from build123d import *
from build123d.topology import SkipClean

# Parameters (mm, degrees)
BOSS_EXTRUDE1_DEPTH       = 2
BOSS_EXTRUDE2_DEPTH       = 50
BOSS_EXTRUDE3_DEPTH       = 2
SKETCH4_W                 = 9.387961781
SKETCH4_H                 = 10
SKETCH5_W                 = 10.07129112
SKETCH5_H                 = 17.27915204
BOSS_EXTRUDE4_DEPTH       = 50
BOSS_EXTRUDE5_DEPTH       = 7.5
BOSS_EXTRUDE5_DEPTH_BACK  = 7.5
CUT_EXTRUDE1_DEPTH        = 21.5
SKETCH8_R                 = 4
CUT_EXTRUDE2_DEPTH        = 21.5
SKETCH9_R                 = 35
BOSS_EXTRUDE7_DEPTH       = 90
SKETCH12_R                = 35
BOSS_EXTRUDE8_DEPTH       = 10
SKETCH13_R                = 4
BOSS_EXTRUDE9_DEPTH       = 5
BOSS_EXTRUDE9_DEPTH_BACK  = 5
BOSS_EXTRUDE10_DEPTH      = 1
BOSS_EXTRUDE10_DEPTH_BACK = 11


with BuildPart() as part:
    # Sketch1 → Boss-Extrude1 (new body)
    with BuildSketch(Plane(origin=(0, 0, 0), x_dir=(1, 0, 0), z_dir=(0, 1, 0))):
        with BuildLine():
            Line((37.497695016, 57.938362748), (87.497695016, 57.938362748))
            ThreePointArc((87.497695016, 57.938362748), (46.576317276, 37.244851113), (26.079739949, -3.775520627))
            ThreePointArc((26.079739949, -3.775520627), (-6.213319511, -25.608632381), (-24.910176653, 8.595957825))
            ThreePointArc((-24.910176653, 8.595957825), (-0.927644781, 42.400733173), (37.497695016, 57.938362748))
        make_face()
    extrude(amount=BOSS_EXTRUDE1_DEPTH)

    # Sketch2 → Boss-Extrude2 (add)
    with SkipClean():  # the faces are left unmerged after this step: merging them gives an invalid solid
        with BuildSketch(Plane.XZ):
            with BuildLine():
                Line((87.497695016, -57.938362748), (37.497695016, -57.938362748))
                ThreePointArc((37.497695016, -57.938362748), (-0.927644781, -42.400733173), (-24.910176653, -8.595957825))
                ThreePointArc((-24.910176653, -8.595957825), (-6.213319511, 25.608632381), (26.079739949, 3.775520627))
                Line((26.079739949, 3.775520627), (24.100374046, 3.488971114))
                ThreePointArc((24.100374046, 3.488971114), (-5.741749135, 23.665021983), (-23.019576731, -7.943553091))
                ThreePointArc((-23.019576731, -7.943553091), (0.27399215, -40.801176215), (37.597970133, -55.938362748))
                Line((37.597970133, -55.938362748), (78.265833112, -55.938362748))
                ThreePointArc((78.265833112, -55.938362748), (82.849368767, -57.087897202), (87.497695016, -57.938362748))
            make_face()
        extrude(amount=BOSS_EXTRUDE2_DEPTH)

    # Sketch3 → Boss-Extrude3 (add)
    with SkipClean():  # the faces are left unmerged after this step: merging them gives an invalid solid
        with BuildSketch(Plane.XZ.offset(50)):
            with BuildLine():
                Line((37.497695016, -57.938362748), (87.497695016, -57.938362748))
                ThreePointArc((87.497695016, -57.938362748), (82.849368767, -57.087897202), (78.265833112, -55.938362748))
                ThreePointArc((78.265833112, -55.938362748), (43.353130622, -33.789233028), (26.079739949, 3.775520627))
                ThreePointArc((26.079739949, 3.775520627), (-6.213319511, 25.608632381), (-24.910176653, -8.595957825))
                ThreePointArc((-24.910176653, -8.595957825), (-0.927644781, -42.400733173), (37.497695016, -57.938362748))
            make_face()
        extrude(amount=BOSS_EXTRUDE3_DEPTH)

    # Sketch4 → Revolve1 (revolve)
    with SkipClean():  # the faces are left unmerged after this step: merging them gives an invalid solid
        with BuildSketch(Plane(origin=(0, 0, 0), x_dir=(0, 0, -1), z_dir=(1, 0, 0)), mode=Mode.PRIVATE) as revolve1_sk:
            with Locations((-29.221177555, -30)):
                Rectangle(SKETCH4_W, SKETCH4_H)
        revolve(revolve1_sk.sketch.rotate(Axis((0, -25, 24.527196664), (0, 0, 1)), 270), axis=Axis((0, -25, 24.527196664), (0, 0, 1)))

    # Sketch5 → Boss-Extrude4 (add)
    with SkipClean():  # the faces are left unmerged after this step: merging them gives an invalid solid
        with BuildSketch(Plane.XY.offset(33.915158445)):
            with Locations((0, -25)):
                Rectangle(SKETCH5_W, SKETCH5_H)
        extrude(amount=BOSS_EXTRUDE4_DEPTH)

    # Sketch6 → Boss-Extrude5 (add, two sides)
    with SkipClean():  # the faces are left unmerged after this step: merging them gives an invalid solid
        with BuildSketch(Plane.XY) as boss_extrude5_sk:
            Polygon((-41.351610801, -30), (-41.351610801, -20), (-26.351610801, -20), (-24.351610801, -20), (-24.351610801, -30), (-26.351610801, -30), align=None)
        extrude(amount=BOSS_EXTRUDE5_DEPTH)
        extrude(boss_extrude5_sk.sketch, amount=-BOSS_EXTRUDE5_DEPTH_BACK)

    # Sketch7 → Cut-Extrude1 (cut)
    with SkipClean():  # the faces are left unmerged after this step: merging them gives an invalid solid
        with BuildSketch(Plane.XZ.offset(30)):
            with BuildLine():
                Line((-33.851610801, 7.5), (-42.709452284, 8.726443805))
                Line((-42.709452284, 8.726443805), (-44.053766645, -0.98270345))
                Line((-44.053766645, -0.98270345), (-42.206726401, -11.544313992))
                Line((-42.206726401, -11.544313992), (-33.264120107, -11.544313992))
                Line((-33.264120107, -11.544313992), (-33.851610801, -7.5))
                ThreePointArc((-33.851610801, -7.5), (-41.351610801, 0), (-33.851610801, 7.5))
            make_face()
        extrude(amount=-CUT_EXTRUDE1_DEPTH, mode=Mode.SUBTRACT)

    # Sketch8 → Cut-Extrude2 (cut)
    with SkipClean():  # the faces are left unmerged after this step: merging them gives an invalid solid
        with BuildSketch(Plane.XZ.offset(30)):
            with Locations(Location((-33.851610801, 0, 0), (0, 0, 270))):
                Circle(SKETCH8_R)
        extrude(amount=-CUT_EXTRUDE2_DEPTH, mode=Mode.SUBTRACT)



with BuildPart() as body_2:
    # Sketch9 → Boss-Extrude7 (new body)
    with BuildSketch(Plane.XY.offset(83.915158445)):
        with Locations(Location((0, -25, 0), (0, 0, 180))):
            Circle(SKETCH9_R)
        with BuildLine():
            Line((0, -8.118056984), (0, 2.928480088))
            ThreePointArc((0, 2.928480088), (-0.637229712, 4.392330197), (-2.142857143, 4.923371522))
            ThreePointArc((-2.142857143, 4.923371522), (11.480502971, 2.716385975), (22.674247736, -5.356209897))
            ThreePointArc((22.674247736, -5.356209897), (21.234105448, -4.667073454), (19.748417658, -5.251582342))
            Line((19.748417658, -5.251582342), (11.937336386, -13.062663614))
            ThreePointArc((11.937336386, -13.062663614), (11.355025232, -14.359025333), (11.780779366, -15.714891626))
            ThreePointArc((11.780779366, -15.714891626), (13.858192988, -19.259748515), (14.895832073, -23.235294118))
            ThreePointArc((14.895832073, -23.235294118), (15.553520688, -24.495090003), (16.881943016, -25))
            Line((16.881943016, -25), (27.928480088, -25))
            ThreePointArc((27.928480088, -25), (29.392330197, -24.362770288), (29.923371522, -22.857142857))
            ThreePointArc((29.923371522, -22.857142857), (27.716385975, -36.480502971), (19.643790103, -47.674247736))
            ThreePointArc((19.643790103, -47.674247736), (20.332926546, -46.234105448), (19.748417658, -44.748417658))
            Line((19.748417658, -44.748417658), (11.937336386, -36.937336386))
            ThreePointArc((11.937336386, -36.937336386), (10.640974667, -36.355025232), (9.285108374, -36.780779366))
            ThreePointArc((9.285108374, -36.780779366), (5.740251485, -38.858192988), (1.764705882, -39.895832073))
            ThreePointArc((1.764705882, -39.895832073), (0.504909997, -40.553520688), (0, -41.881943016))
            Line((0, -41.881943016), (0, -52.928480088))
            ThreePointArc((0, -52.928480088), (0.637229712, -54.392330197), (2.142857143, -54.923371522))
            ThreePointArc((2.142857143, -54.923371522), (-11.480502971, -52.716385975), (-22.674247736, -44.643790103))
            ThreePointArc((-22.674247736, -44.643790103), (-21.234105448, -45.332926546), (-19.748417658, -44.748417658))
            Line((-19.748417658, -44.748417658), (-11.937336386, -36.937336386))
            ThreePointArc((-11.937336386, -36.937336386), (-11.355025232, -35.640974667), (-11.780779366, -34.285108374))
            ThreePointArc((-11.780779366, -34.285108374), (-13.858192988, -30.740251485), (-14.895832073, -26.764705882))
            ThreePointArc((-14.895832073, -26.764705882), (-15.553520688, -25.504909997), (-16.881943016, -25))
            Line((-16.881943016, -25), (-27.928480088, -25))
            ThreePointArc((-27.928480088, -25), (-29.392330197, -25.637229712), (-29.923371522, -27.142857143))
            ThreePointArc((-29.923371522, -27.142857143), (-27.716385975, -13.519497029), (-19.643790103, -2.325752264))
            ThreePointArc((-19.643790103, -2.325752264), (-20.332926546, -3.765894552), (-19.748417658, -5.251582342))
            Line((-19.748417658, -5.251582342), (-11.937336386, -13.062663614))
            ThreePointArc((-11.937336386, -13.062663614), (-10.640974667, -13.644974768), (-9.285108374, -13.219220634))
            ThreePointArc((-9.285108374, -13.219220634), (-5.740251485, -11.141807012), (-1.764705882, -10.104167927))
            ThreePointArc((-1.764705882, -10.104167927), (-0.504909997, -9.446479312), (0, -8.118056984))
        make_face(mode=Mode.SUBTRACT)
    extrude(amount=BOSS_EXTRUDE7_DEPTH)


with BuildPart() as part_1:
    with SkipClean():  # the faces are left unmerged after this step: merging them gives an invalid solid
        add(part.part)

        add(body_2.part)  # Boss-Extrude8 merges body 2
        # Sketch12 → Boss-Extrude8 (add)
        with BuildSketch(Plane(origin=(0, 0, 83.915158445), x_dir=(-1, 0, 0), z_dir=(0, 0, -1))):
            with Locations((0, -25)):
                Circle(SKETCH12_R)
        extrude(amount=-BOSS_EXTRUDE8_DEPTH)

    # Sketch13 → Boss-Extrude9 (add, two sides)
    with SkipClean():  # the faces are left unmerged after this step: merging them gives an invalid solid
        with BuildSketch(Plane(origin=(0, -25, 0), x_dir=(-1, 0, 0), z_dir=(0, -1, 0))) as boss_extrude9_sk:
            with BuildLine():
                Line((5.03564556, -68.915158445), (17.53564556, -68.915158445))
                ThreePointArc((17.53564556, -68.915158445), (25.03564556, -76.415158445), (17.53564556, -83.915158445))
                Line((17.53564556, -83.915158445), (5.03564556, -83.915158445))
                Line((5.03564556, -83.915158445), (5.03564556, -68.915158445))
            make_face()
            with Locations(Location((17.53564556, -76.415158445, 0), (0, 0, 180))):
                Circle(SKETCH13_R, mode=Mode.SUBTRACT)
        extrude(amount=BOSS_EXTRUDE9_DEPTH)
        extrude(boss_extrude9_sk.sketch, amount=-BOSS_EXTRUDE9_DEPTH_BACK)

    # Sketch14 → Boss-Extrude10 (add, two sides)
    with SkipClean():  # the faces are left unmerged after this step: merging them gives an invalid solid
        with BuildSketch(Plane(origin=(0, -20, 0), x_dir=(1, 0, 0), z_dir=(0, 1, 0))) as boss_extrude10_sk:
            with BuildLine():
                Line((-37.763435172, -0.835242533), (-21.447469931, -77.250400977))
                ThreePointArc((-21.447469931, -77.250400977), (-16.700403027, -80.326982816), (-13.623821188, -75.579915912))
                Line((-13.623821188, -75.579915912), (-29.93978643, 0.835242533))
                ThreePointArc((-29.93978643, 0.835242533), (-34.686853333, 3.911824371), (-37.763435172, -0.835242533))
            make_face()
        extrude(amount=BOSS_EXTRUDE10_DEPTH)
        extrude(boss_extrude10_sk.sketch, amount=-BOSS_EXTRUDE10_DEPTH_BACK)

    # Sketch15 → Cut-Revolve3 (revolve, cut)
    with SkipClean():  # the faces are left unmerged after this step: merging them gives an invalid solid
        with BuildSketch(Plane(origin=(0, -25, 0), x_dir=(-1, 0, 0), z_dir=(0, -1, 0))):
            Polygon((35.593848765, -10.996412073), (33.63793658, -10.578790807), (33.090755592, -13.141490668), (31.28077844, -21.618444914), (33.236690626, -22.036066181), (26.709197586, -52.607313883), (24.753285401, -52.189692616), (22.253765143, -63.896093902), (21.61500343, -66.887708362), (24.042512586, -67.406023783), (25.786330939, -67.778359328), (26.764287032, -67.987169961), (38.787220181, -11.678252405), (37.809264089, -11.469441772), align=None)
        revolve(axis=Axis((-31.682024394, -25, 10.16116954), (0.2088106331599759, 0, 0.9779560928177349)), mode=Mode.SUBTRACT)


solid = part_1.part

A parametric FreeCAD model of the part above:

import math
import FreeCAD as App
import Part
import Sketcher
Q = App.Units.Quantity


def add_polygon(sketch, points):
    """Adds a closed chain of lines whose ends are joined by coincident constraints."""
    first, n = sketch.GeometryCount, len(points)
    for a, b in zip(points, points[1:] + points[:1]):
        sketch.addGeometry(Part.LineSegment(App.Vector(*a, 0), App.Vector(*b, 0)), False)
    for i in range(n):
        sketch.addConstraint(Sketcher.Constraint("Coincident", first + i, 2, first + (i + 1) % n, 1))

doc = App.newDocument("Part")
body = doc.addObject("PartDesign::Body", "Body")

# Sketch on XZ plane
sketch1 = body.newObject("Sketcher::SketchObject", "Sketch")
sketch1.AttachmentSupport = (doc.getObject("XZ_Plane"), [""])
sketch1.MapMode = "FlatFace"
sketch1.addGeometry([
    Part.LineSegment(App.Vector(87, -58, 0), App.Vector(37, -58, 0)),
    Part.ArcOfCircle(Part.Circle(App.Vector(45, 15, 0), App.Vector(0, 0, 1), 74), math.radians(-161), math.radians(-96)),
    Part.ArcOfCircle(Part.Circle(App.Vector(0, 0, 0), App.Vector(0, 0, 1), 26), math.radians(8), math.radians(199)),
    Part.ArcOfCircle(Part.Circle(App.Vector(98, 14, 0), App.Vector(0, 0, 1), 73), math.radians(-172), math.radians(-99)),
], False)
sketch1.addConstraint([
    Sketcher.Constraint("Coincident", 0, 2, 1, 2),
    Sketcher.Constraint("Tangent", 1, 1, 2, 2),
    Sketcher.Constraint("Tangent", 2, 1, 3, 1),
    Sketcher.Constraint("Coincident", 3, 2, 0, 1),
    Sketcher.Constraint("Horizontal", 0),
    Sketcher.Constraint("Coincident", 2, 3, -1, 1),
    Sketcher.Constraint("DistanceX", 0, 2, 0, 1, Q("50 mm")),
    Sketcher.Constraint("Radius", 2, Q("26.351611 mm")),
    Sketcher.Constraint("Radius", 3, Q("72.973032 mm")),
    Sketcher.Constraint("Radius", 1, Q("73.771905 mm")),
    Sketcher.Constraint("DistanceX", -1, 1, 1, 3, Q("44.826402 mm")),
    Sketcher.Constraint("DistanceY", 3, 3, 1, 3, Q("1.237898 mm")),
])
pad1 = body.newObject("PartDesign::Pad", "Pad")
pad1.Profile = sketch1
pad1.Length = 2
pad1.Reversed = True

# Sketch on XZ plane
sketch2 = body.newObject("Sketcher::SketchObject", "Sketch001")
sketch2.AttachmentSupport = (doc.getObject("XZ_Plane"), [""])
sketch2.MapMode = "FlatFace"
sketch2.addGeometry([
    Part.LineSegment(App.Vector(37.5, -57.9, 0), App.Vector(87.5, -57.9, 0)),  # 0
    Part.ArcOfCircle(Part.Circle(App.Vector(98.3, 14.2, 0), App.Vector(0, 0, 1), 73), math.radians(-105.93), math.radians(-98.51)),  # 1
    Part.LineSegment(App.Vector(78.3, -55.9, 0), App.Vector(37.6, -55.9, 0)),  # 2
    Part.ArcOfCircle(Part.Circle(App.Vector(44.8, 15.5, 0), App.Vector(0, 0, 1), 71.8), math.radians(-161), math.radians(-96)),  # 3
    Part.ArcOfCircle(Part.Circle(App.Vector(0, 0, 0), App.Vector(0, 0, 1), 24.4), math.radians(8), math.radians(199)),  # 4
    Part.LineSegment(App.Vector(24.1, 3.5, 0), App.Vector(26.1, 3.8, 0)),  # 5
    Part.ArcOfCircle(Part.Circle(App.Vector(0, 0, 0), App.Vector(0, 0, 1), 26.4), math.radians(8), math.radians(199)),  # 6
    Part.ArcOfCircle(Part.Circle(App.Vector(44.8, 15.5, 0), App.Vector(0, 0, 1), 73.8), math.radians(-161), math.radians(-96)),  # 7
], False)
sketch2.addConstraint([
    Sketcher.Constraint("Coincident", 0, 2, 1, 2),
    Sketcher.Constraint("Coincident", 1, 1, 2, 1),
    Sketcher.Constraint("Coincident", 2, 2, 3, 2),
    Sketcher.Constraint("Tangent", 3, 1, 4, 2),
    Sketcher.Constraint("Coincident", 4, 1, 5, 1),
    Sketcher.Constraint("Coincident", 5, 2, 6, 1),
    Sketcher.Constraint("Tangent", 6, 2, 7, 1),
    Sketcher.Constraint("Coincident", 7, 2, 0, 1),
    Sketcher.Constraint("Horizontal", 0),
    Sketcher.Constraint("Horizontal", 2),
    Sketcher.Constraint("Coincident", 4, 3, -1, 1),
    Sketcher.Constraint("Coincident", 6, 3, -1, 1),
    Sketcher.Constraint("Coincident", 7, 3, 3, 3),
    Sketcher.Constraint("DistanceX", 0, 1, 0, 2, Q("50 mm")),
    Sketcher.Constraint("Distance", 5, Q("2 mm")),
    Sketcher.Constraint("DistanceY", 0, 2, 1, 1, Q("2 mm")),
    Sketcher.Constraint("Radius", 1, Q("72.973032 mm")),
    Sketcher.Constraint("Radius", 4, Q("24.351611 mm")),
    Sketcher.Constraint("Radius", 3, Q("71.771905 mm")),
    Sketcher.Constraint("DistanceX", -1, 1, 3, 3, Q("44.826402 mm")),
    Sketcher.Constraint("DistanceY", 1, 3, 3, 3, Q("1.237898 mm")),
    Sketcher.Constraint("DistanceX", 2, 2, 2, 1, Q("40.667863 mm")),
    Sketcher.Constraint("DistanceY", -1, 1, 4, 1, Q("3.488971 mm")),
    Sketcher.Constraint("DistanceX", -1, 1, 5, 2, Q("26.07974 mm")),
])
pad2 = body.newObject("PartDesign::Pad", "Pad001")
pad2.Profile = sketch2
pad2.Length = 50

# Sketch on XZ plane
sketch3 = body.newObject("Sketcher::SketchObject", "Sketch002")
sketch3.AttachmentSupport = (doc.getObject("XZ_Plane"), [""])
sketch3.MapMode = "FlatFace"
sketch3.AttachmentOffset = App.Placement(App.Vector(0, 0, 50), App.Rotation())
sketch3.addGeometry([
    Part.LineSegment(App.Vector(37, -58, 0), App.Vector(87, -58, 0)),  # 0
    Part.ArcOfCircle(Part.Circle(App.Vector(98, 14, 0), App.Vector(0, 0, 1), 73), math.radians(-105.93), math.radians(-98.51)),  # 1
    Part.ArcOfCircle(Part.Circle(App.Vector(98, 14, 0), App.Vector(0, 0, 1), 73), math.radians(-172), math.radians(-106)),  # 2
    Part.ArcOfCircle(Part.Circle(App.Vector(0, 0, 0), App.Vector(0, 0, 1), 26), math.radians(8), math.radians(199)),  # 3
    Part.ArcOfCircle(Part.Circle(App.Vector(45, 15, 0), App.Vector(0, 0, 1), 74), math.radians(-161), math.radians(-96)),  # 4
], False)
sketch3.addConstraint([
    Sketcher.Constraint("Coincident", 0, 2, 1, 2),
    Sketcher.Constraint("Tangent", 1, 1, 2, 2),
    Sketcher.Constraint("Tangent", 2, 1, 3, 1),
    Sketcher.Constraint("Tangent", 3, 2, 4, 1),
    Sketcher.Constraint("Coincident", 4, 2, 0, 1),
    Sketcher.Constraint("Horizontal", 0),
    Sketcher.Constraint("Coincident", 3, 3, -1, 1),
    Sketcher.Constraint("Equal", 1, 2),
    Sketcher.Constraint("DistanceX", 0, 1, 0, 2, Q("50 mm")),
    Sketcher.Constraint("DistanceY", 0, 2, 1, 1, Q("2 mm")),
    Sketcher.Constraint("Radius", 1, Q("72.973032 mm")),
    Sketcher.Constraint("Radius", 3, Q("26.351611 mm")),
    Sketcher.Constraint("Radius", 4, Q("73.771905 mm")),
    Sketcher.Constraint("DistanceX", -1, 1, 4, 3, Q("44.826402 mm")),
    Sketcher.Constraint("DistanceY", 1, 3, 4, 3, Q("1.237898 mm")),
])
pad3 = body.newObject("PartDesign::Pad", "Pad002")
pad3.Profile = sketch3
pad3.Length = 2

# Sketch on YZ plane
sketch4 = body.newObject("Sketcher::SketchObject", "Sketch003")
sketch4.AttachmentSupport = (doc.getObject("YZ_Plane"), [""])
sketch4.MapMode = "FlatFace"
add_polygon(sketch4, [(-25, 34), (-35, 34), (-35, 25), (-25, 25)])  # lines 0-3
sketch4.addGeometry(Part.LineSegment(App.Vector(-25, 25, 0), App.Vector(-25, 34, 0)), True)  # axis
sketch4.addConstraint([
    Sketcher.Constraint("Horizontal", 0),
    Sketcher.Constraint("Vertical", 1),
    Sketcher.Constraint("Horizontal", 2),
    Sketcher.Constraint("Vertical", 3),
    Sketcher.Constraint("Vertical", 4),
    Sketcher.Constraint("Coincident", 4, 1, 2, 2),
    Sketcher.Constraint("Horizontal", 0, 2, 4, 2),
    Sketcher.Constraint("DistanceX", 0, 2, 0, 1, Q("10 mm")),
    Sketcher.Constraint("DistanceX", 0, 2, -1, 1, Q("35 mm")),
    Sketcher.Constraint("DistanceY", 1, 2, 1, 1, Q("9.387962 mm")),
    Sketcher.Constraint("DistanceY", -1, 1, 0, 2, Q("33.915158 mm")),
])
revolution = body.newObject("PartDesign::Revolution", "Revolution")
revolution.Profile = sketch4
revolution.ReferenceAxis = (sketch4, ["Axis0"])
revolution.Angle = 360

# Sketch on XY plane
sketch5 = body.newObject("Sketcher::SketchObject", "Sketch004")
sketch5.AttachmentSupport = (doc.getObject("XY_Plane"), [""])
sketch5.MapMode = "FlatFace"
sketch5.AttachmentOffset = App.Placement(App.Vector(0, 0, 33.915158), App.Rotation())
add_polygon(sketch5, [(-5, -16), (-5, -34), (5, -34), (5, -16)])  # lines 0-3
sketch5.addConstraint([
    Sketcher.Constraint("Vertical", 0),
    Sketcher.Constraint("Horizontal", 1),
    Sketcher.Constraint("Vertical", 2),
    Sketcher.Constraint("Horizontal", 3),
    Sketcher.Constraint("DistanceX", 1, 1, 1, 2, Q("10.071291 mm")),
    Sketcher.Constraint("DistanceY", 0, 2, 0, 1, Q("17.279152 mm")),
    Sketcher.Constraint("DistanceX", 0, 2, -1, 1, Q("5.035646 mm")),
    Sketcher.Constraint("DistanceY", 0, 2, -1, 1, Q("33.639576 mm")),
])
pad4 = body.newObject("PartDesign::Pad", "Pad003")
pad4.Profile = sketch5
pad4.Length = 50

# Sketch on XY plane
sketch6 = body.newObject("Sketcher::SketchObject", "Sketch005")
sketch6.AttachmentSupport = (doc.getObject("XY_Plane"), [""])
sketch6.MapMode = "FlatFace"
add_polygon(sketch6, [(-41, -20), (-41, -30), (-24, -30), (-24, -20)])  # lines 0-3
sketch6.addConstraint([
    Sketcher.Constraint("Vertical", 0),
    Sketcher.Constraint("Horizontal", 1),
    Sketcher.Constraint("Vertical", 2),
    Sketcher.Constraint("Horizontal", 3),
    Sketcher.Constraint("DistanceX", 1, 1, 1, 2, Q("17 mm")),
    Sketcher.Constraint("DistanceY", 0, 2, 0, 1, Q("10 mm")),
    Sketcher.Constraint("DistanceY", 0, 2, -1, 1, Q("30 mm")),
    Sketcher.Constraint("DistanceX", 0, 2, -1, 1, Q("41.351611 mm")),
])
pad5 = body.newObject("PartDesign::Pad", "Pad004")
pad5.Profile = sketch6
pad5.Type = "TwoLengths"
pad5.Length = 7.5
pad5.Length2 = 7.5

# Sketch on XZ plane
sketch7 = body.newObject("Sketcher::SketchObject", "Sketch006")
sketch7.AttachmentSupport = (doc.getObject("XZ_Plane"), [""])
sketch7.MapMode = "FlatFace"
sketch7.AttachmentOffset = App.Placement(App.Vector(0, 0, 30), App.Rotation())
sketch7.addGeometry([
    Part.LineSegment(App.Vector(-33.9, 7.5, 0), App.Vector(-42.7, 8.7, 0)),  # 0
    Part.LineSegment(App.Vector(-42.7, 8.7, 0), App.Vector(-44.1, -1, 0)),  # 1
    Part.LineSegment(App.Vector(-44.1, -1, 0), App.Vector(-42.2, -11.5, 0)),  # 2
    Part.LineSegment(App.Vector(-42.2, -11.5, 0), App.Vector(-33.3, -11.5, 0)),  # 3
    Part.LineSegment(App.Vector(-33.3, -11.5, 0), App.Vector(-33.9, -7.5, 0)),  # 4
    Part.ArcOfCircle(Part.Circle(App.Vector(-33.9, 0, 0), App.Vector(0, 0, 1), 7.5), math.radians(90), math.radians(270)),  # 5
], False)
sketch7.addConstraint([
    Sketcher.Constraint("Coincident", 0, 2, 1, 1),
    Sketcher.Constraint("Coincident", 1, 2, 2, 1),
    Sketcher.Constraint("Coincident", 2, 2, 3, 1),
    Sketcher.Constraint("Coincident", 3, 2, 4, 1),
    Sketcher.Constraint("Coincident", 4, 2, 5, 2),
    Sketcher.Constraint("Coincident", 5, 1, 0, 1),
    Sketcher.Constraint("Horizontal", 3),
    Sketcher.Constraint("Symmetric", 4, 2, 5, 1, -1),
    Sketcher.Constraint("Perpendicular", 0, 1),
    Sketcher.Constraint("Vertical", 5, 3, 4, 2),
    Sketcher.Constraint("Radius", 5, Q("7.5 mm")),
    Sketcher.Constraint("Distance", 2, Q("10.721902 mm")),
    Sketcher.Constraint("Distance", 1, Q("9.801771 mm")),
    Sketcher.Constraint("Distance", 4, Q("4.086762 mm")),
    Sketcher.Constraint("DistanceX", 3, 1, 3, 2, Q("8.942606 mm")),
    Sketcher.Constraint("DistanceX", 5, 3, -1, 1, Q("33.851611 mm")),
    Sketcher.Constraint("DistanceX", 3, 2, -1, 1, Q("33.26412 mm")),
    Sketcher.Constraint("DistanceX", 0, 2, 5, 3, Q("8.857841 mm")),
])
pocket1 = body.newObject("PartDesign::Pocket", "Pocket")
pocket1.Profile = sketch7
pocket1.Length = 21.5

# Sketch on XZ plane
sketch8 = body.newObject("Sketcher::SketchObject", "Sketch007")
sketch8.AttachmentSupport = (doc.getObject("XZ_Plane"), [""])
sketch8.MapMode = "FlatFace"
sketch8.AttachmentOffset = App.Placement(App.Vector(0, 0, 30), App.Rotation())
sketch8.addGeometry(Part.Circle(App.Vector(-33.9, 0, 0), App.Vector(0, 0, 1), 4), False)
sketch8.addConstraint([
    Sketcher.Constraint("PointOnObject", 0, 3, -1),
    Sketcher.Constraint("Diameter", 0, Q("8 mm")),
    Sketcher.Constraint("DistanceX", 0, 3, -1, 1, Q("33.851611 mm")),
])
pocket2 = body.newObject("PartDesign::Pocket", "Pocket001")
pocket2.Profile = sketch8
pocket2.Length = 21.5
body2 = doc.addObject("PartDesign::Body", "Body001")

# Sketch on XY plane
sketch9 = body2.newObject("Sketcher::SketchObject", "Sketch008")
sketch9.AttachmentSupport = (doc.getObject("XY_Plane001"), [""])
sketch9.MapMode = "FlatFace"
sketch9.AttachmentOffset = App.Placement(App.Vector(0, 0, 83.915158), App.Rotation())
sketch9.addGeometry([
    Part.Circle(App.Vector(0, -25, 0), App.Vector(0, 0, 1), 35),  # 0
    Part.ArcOfCircle(Part.Circle(App.Vector(-2, -8.1, 0), App.Vector(0, 0, 1), 2), math.radians(-83), math.radians(0)),  # 1
    Part.LineSegment(App.Vector(0, -8.1, 0), App.Vector(0, 2.9, 0)),  # 2
    Part.ArcOfCircle(Part.Circle(App.Vector(-2, 2.9, 0), App.Vector(0, 0, 1), 2), math.radians(0), math.radians(94)),  # 3
    Part.ArcOfCircle(Part.Circle(App.Vector(0, -25, 0), App.Vector(0, 0, 1), 30), math.radians(41), math.radians(94)),  # 4
    Part.ArcOfCircle(Part.Circle(App.Vector(21.2, -6.7, 0), App.Vector(0, 0, 1), 2), math.radians(41), math.radians(135)),  # 5
    Part.LineSegment(App.Vector(19.7, -5.3, 0), App.Vector(11.9, -13.1, 0)),  # 6
    Part.ArcOfCircle(Part.Circle(App.Vector(13.4, -14.5, 0), App.Vector(0, 0, 1), 2), math.radians(135), math.radians(218)),  # 7
    Part.ArcOfCircle(Part.Circle(App.Vector(0, -25, 0), App.Vector(0, 0, 1), 15), math.radians(7), math.radians(38)),  # 8
    Part.ArcOfCircle(Part.Circle(App.Vector(16.9, -23, 0), App.Vector(0, 0, 1), 2), math.radians(-173), math.radians(-90)),  # 9
    Part.LineSegment(App.Vector(16.9, -25, 0), App.Vector(27.9, -25, 0)),  # 10
    Part.ArcOfCircle(Part.Circle(App.Vector(27.9, -23, 0), App.Vector(0, 0, 1), 2), math.radians(-90), math.radians(4)),  # 11
    Part.ArcOfCircle(Part.Circle(App.Vector(0, -25, 0), App.Vector(0, 0, 1), 30), math.radians(-49), math.radians(4)),  # 12
    Part.ArcOfCircle(Part.Circle(App.Vector(18.3, -46.2, 0), App.Vector(0, 0, 1), 2), math.radians(-49), math.radians(45)),  # 13
    Part.LineSegment(App.Vector(19.7, -44.7, 0), App.Vector(11.9, -36.9, 0)),  # 14
    Part.ArcOfCircle(Part.Circle(App.Vector(10.5, -38.4, 0), App.Vector(0, 0, 1), 2), math.radians(45), math.radians(128)),  # 15
    Part.ArcOfCircle(Part.Circle(App.Vector(0, -25, 0), App.Vector(0, 0, 1), 15), math.radians(-83), math.radians(-52)),  # 16
    Part.ArcOfCircle(Part.Circle(App.Vector(2, -41.9, 0), App.Vector(0, 0, 1), 2), math.radians(97), math.radians(180)),  # 17
    Part.LineSegment(App.Vector(0, -41.9, 0), App.Vector(0, -52.9, 0)),  # 18
    Part.ArcOfCircle(Part.Circle(App.Vector(2, -52.9, 0), App.Vector(0, 0, 1), 2), math.radians(180), math.radians(274)),  # 19
    Part.ArcOfCircle(Part.Circle(App.Vector(0, -25, 0), App.Vector(0, 0, 1), 30), math.radians(-139), math.radians(-86)),  # 20
    Part.ArcOfCircle(Part.Circle(App.Vector(-21.2, -43.3, 0), App.Vector(0, 0, 1), 2), math.radians(-139), math.radians(-45)),  # 21
    Part.LineSegment(App.Vector(-19.7, -44.7, 0), App.Vector(-11.9, -36.9, 0)),  # 22
    Part.ArcOfCircle(Part.Circle(App.Vector(-13.4, -35.5, 0), App.Vector(0, 0, 1), 2), math.radians(-45), math.radians(38)),  # 23
    Part.ArcOfCircle(Part.Circle(App.Vector(0, -25, 0), App.Vector(0, 0, 1), 15), math.radians(-173), math.radians(-142)),  # 24
    Part.ArcOfCircle(Part.Circle(App.Vector(-16.9, -27, 0), App.Vector(0, 0, 1), 2), math.radians(7), math.radians(90)),  # 25
    Part.LineSegment(App.Vector(-16.9, -25, 0), App.Vector(-27.9, -25, 0)),  # 26
    Part.ArcOfCircle(Part.Circle(App.Vector(-27.9, -27, 0), App.Vector(0, 0, 1), 2), math.radians(90), math.radians(184)),  # 27
    Part.ArcOfCircle(Part.Circle(App.Vector(0, -25, 0), App.Vector(0, 0, 1), 30), math.radians(131), math.radians(184)),  # 28
    Part.ArcOfCircle(Part.Circle(App.Vector(-18.3, -3.8, 0), App.Vector(0, 0, 1), 2), math.radians(131), math.radians(225)),  # 29
    Part.LineSegment(App.Vector(-19.7, -5.3, 0), App.Vector(-11.9, -13.1, 0)),  # 30
    Part.ArcOfCircle(Part.Circle(App.Vector(-10.5, -11.6, 0), App.Vector(0, 0, 1), 2), math.radians(-135), math.radians(-52)),  # 31
    Part.ArcOfCircle(Part.Circle(App.Vector(0, -25, 0), App.Vector(0, 0, 1), 15), math.radians(97), math.radians(128)),  # 32
], False)
sketch9.addConstraint([
    Sketcher.Constraint("Tangent", 1, 2, 2, 1),
    Sketcher.Constraint("Tangent", 2, 2, 3, 1),
    Sketcher.Constraint("Tangent", 3, 2, 4, 2),
    Sketcher.Constraint("Tangent", 4, 1, 5, 1),
    Sketcher.Constraint("Tangent", 5, 2, 6, 1),
    Sketcher.Constraint("Tangent", 6, 2, 7, 1),
    Sketcher.Constraint("Tangent", 7, 2, 8, 2),
    Sketcher.Constraint("Tangent", 8, 1, 9, 1),
    Sketcher.Constraint("Tangent", 9, 2, 10, 1),
    Sketcher.Constraint("Tangent", 10, 2, 11, 1),
    Sketcher.Constraint("Tangent", 11, 2, 12, 2),
    Sketcher.Constraint("Tangent", 12, 1, 13, 1),
    Sketcher.Constraint("Tangent", 13, 2, 14, 1),
    Sketcher.Constraint("Tangent", 14, 2, 15, 1),
    Sketcher.Constraint("Tangent", 15, 2, 16, 2),
    Sketcher.Constraint("Tangent", 16, 1, 17, 1),
    Sketcher.Constraint("Tangent", 17, 2, 18, 1),
    Sketcher.Constraint("Tangent", 18, 2, 19, 1),
    Sketcher.Constraint("Tangent", 19, 2, 20, 2),
    Sketcher.Constraint("Tangent", 20, 1, 21, 1),
    Sketcher.Constraint("Tangent", 21, 2, 22, 1),
    Sketcher.Constraint("Tangent", 22, 2, 23, 1),
    Sketcher.Constraint("Tangent", 23, 2, 24, 2),
    Sketcher.Constraint("Tangent", 24, 1, 25, 1),
    Sketcher.Constraint("Tangent", 25, 2, 26, 1),
    Sketcher.Constraint("Tangent", 26, 2, 27, 1),
    Sketcher.Constraint("Tangent", 27, 2, 28, 2),
    Sketcher.Constraint("Tangent", 28, 1, 29, 1),
    Sketcher.Constraint("Tangent", 29, 2, 30, 1),
    Sketcher.Constraint("Tangent", 30, 2, 31, 1),
    Sketcher.Constraint("Tangent", 31, 2, 32, 2),
    Sketcher.Constraint("Tangent", 32, 1, 1, 1),
    Sketcher.Constraint("Vertical", 2),
    Sketcher.Constraint("Horizontal", 10),
    Sketcher.Constraint("Vertical", 18),
    Sketcher.Constraint("Horizontal", 26),
    Sketcher.Constraint("Coincident", 4, 3, 0, 3),
    Sketcher.Constraint("Coincident", 8, 3, 0, 3),
    Sketcher.Constraint("Coincident", 12, 3, 0, 3),
    Sketcher.Constraint("Coincident", 16, 3, 0, 3),
    Sketcher.Constraint("Coincident", 20, 3, 0, 3),
    Sketcher.Constraint("Coincident", 24, 3, 0, 3),
    Sketcher.Constraint("Coincident", 28, 3, 0, 3),
    Sketcher.Constraint("Coincident", 32, 3, 0, 3),
    Sketcher.Constraint("Equal", 1, 3),
    Sketcher.Constraint("Equal", 3, 5),
    Sketcher.Constraint("Equal", 5, 7),
    Sketcher.Constraint("Equal", 7, 9),
    Sketcher.Constraint("Equal", 9, 11),
    Sketcher.Constraint("Equal", 4, 12),
    Sketcher.Constraint("Equal", 11, 13),
    Sketcher.Constraint("Equal", 13, 15),
    Sketcher.Constraint("Equal", 8, 16),
    Sketcher.Constraint("Equal", 15, 17),
    Sketcher.Constraint("Equal", 17, 19),
    Sketcher.Constraint("Equal", 12, 20),
    Sketcher.Constraint("Equal", 19, 21),
    Sketcher.Constraint("Equal", 21, 23),
    Sketcher.Constraint("Equal", 16, 24),
    Sketcher.Constraint("Equal", 23, 25),
    Sketcher.Constraint("Equal", 25, 27),
    Sketcher.Constraint("Equal", 20, 28),
    Sketcher.Constraint("Equal", 27, 29),
    Sketcher.Constraint("Equal", 29, 31),
    Sketcher.Constraint("Equal", 24, 32),
    Sketcher.Constraint("Symmetric", 13, 2, 21, 2, -2),
    Sketcher.Constraint("Symmetric", 14, 2, 22, 2, -2),
    Sketcher.Constraint("Symmetric", 9, 2, 25, 2, -2),
    Sketcher.Constraint("Symmetric", 5, 2, 29, 2, -2),
    Sketcher.Constraint("PointOnObject", 1, 2, -2),
    Sketcher.Constraint("PointOnObject", 17, 2, -2),
    Sketcher.Constraint("Perpendicular", 6, 14),
    Sketcher.Constraint("Perpendicular", 14, 22),
    Sketcher.Constraint("Perpendicular", 22, 30),
    Sketcher.Constraint("Diameter", 0, Q("70 mm")),
    Sketcher.Constraint("Radius", 1, Q("2 mm")),
    Sketcher.Constraint("Radius", 4, Q("30 mm")),
    Sketcher.Constraint("Radius", 8, Q("15 mm")),
    Sketcher.Constraint("DistanceY", 0, 3, -1, 1, Q("25 mm")),
])
pad6 = body2.newObject("PartDesign::Pad", "Pad005")
pad6.Profile = sketch9
pad6.Length = 90
body.AllowCompound = True
doc.recompute()

boolean = body.newObject("PartDesign::Boolean", "Boolean")
boolean.Type = "Fuse"
boolean.addObjects([body2])

# Sketch on XY plane
sketch10 = body.newObject("Sketcher::SketchObject", "Sketch009")
sketch10.AttachmentSupport = (doc.getObject("XY_Plane"), [""])
sketch10.MapMode = "FlatFace"
sketch10.AttachmentOffset = App.Placement(App.Vector(0, 0, 83.915158), App.Rotation())
sketch10.addGeometry(Part.Circle(App.Vector(0, -25, 0), App.Vector(0, 0, 1), 35), False)
sketch10.addConstraint([
    Sketcher.Constraint("PointOnObject", 0, 3, -2),
    Sketcher.Constraint("Diameter", 0, Q("70 mm")),
    Sketcher.Constraint("DistanceY", 0, 3, -1, 1, Q("25 mm")),
])
pad7 = body.newObject("PartDesign::Pad", "Pad006")
pad7.Profile = sketch10
pad7.Length = 10

# Sketch on XZ plane
sketch11 = body.newObject("Sketcher::SketchObject", "Sketch010")
sketch11.AttachmentSupport = (doc.getObject("XZ_Plane"), [""])
sketch11.MapMode = "FlatFace"
sketch11.AttachmentOffset = App.Placement(App.Vector(0, 0, 25), App.Rotation())
sketch11.addGeometry([
    Part.LineSegment(App.Vector(-17.5, 68.9, 0), App.Vector(-5, 68.9, 0)),  # 0
    Part.LineSegment(App.Vector(-5, 68.9, 0), App.Vector(-5, 83.9, 0)),  # 1
    Part.LineSegment(App.Vector(-5, 83.9, 0), App.Vector(-17.5, 83.9, 0)),  # 2
    Part.ArcOfCircle(Part.Circle(App.Vector(-17.5, 76.4, 0), App.Vector(0, 0, 1), 7.5), math.radians(90), math.radians(270)),  # 3
    Part.Circle(App.Vector(-17.5, 76.4, 0), App.Vector(0, 0, 1), 4),  # 4
], False)
sketch11.addConstraint([
    Sketcher.Constraint("Coincident", 0, 2, 1, 1),
    Sketcher.Constraint("Coincident", 1, 2, 2, 1),
    Sketcher.Constraint("Tangent", 2, 2, 3, 1),
    Sketcher.Constraint("Tangent", 3, 2, 0, 1),
    Sketcher.Constraint("Horizontal", 0),
    Sketcher.Constraint("Vertical", 1),
    Sketcher.Constraint("Horizontal", 2),
    Sketcher.Constraint("Coincident", 4, 3, 3, 3),
    Sketcher.Constraint("Diameter", 4, Q("8 mm")),
    Sketcher.Constraint("Radius", 3, Q("7.5 mm")),
    Sketcher.Constraint("DistanceX", 0, 1, 0, 2, Q("12.5 mm")),
    Sketcher.Constraint("DistanceY", -1, 1, 3, 3, Q("76.415158 mm")),
    Sketcher.Constraint("DistanceX", 3, 3, -1, 1, Q("17.535646 mm")),
])
pad8 = body.newObject("PartDesign::Pad", "Pad007")
pad8.Profile = sketch11
pad8.Type = "TwoLengths"
pad8.Length = 5
pad8.Length2 = 5

# Sketch on XZ plane
sketch12 = body.newObject("Sketcher::SketchObject", "Sketch011")
sketch12.AttachmentSupport = (doc.getObject("XZ_Plane"), [""])
sketch12.MapMode = "FlatFace"
sketch12.AttachmentOffset = App.Placement(App.Vector(0, 0, 20), App.Rotation())
sketch12.addGeometry([
    Part.LineSegment(App.Vector(-37.8, 0.8, 0), App.Vector(-21.4, 77.3, 0)),
    Part.ArcOfCircle(Part.Circle(App.Vector(-17.5, 76.4, 0), App.Vector(0, 0, 1), 4), math.radians(-12), math.radians(168)),
    Part.LineSegment(App.Vector(-13.6, 75.6, 0), App.Vector(-29.9, -0.8, 0)),
    Part.ArcOfCircle(Part.Circle(App.Vector(-33.9, 0, 0), App.Vector(0, 0, 1), 4), math.radians(168), math.radians(348)),
], False)
sketch12.addConstraint([
    Sketcher.Constraint("Tangent", 0, 2, 1, 2),
    Sketcher.Constraint("Tangent", 1, 1, 2, 1),
    Sketcher.Constraint("Tangent", 2, 2, 3, 2),
    Sketcher.Constraint("Tangent", 3, 1, 0, 1),
    Sketcher.Constraint("Equal", 1, 3),
    Sketcher.Constraint("PointOnObject", 3, 3, -1),
    Sketcher.Constraint("Radius", 1, Q("4 mm")),
    Sketcher.Constraint("DistanceY", -1, 1, 0, 2, Q("77.250401 mm")),
    Sketcher.Constraint("DistanceY", -1, 1, 1, 3, Q("76.415158 mm")),
    Sketcher.Constraint("DistanceX", 3, 3, -1, 1, Q("33.851611 mm")),
])
pad9 = body.newObject("PartDesign::Pad", "Pad008")
pad9.Profile = sketch12
pad9.Type = "TwoLengths"
pad9.Length = 1
pad9.Length2 = 11
pad9.Reversed = True

# Sketch on XZ plane
sketch13 = body.newObject("Sketcher::SketchObject", "Sketch012")
sketch13.AttachmentSupport = (doc.getObject("XZ_Plane"), [""])
sketch13.MapMode = "FlatFace"
sketch13.AttachmentOffset = App.Placement(App.Vector(0, 0, 25), App.Rotation())
add_polygon(sketch13, [(-35.593849, 10.996412), (-33.637937, 10.578791), (-33.090756, 13.141491), (-31.280778, 21.618445), (-33.236691, 22.036066), (-26.709198, 52.607314), (-24.753285, 52.189693), (-22.253765, 63.896094), (-21.615003, 66.887708), (-24.042513, 67.406024), (-25.786331, 67.778359), (-26.764287, 67.98717), (-38.78722, 11.678252), (-37.809264, 11.469442)])  # lines 0-13
sketch13.addGeometry(Part.LineSegment(App.Vector(-31.682024, 10.16117, 0), App.Vector(-19.659091, 66.470087, 0)), True)  # axis
sketch13.addConstraint([
    Sketcher.Constraint("Distance", 0, Q("2 mm")),
    Sketcher.Constraint("Distance", 3, Q("2 mm")),
    Sketcher.Constraint("Distance", 5, Q("2 mm")),
    Sketcher.Constraint("Distance", 10, Q("1 mm")),
    Sketcher.Constraint("Distance", 12, Q("1 mm")),
    Sketcher.Constraint("DistanceY", 0, 2, 1, 2, Q("2.5627 mm")),
    Sketcher.Constraint("DistanceY", 1, 2, 5, 2, Q("39.048202 mm")),
    Sketcher.Constraint("DistanceY", 5, 2, 6, 2, Q("11.706401 mm")),
    Sketcher.Constraint("Distance", 2, Q("8.668032 mm")),
    Sketcher.Constraint("DistanceY", -1, 1, 0, 2, Q("10.578791 mm")),
    Sketcher.Constraint("DistanceX", 2, 2, -1, 1, Q("31.280778 mm")),
    Sketcher.Constraint("DistanceX", 3, 2, -1, 1, Q("33.236691 mm")),
    Sketcher.Constraint("DistanceY", -1, 1, 7, 2, Q("66.887708 mm")),
    Sketcher.Constraint("DistanceX", 9, 2, -1, 1, Q("25.786331 mm")),
    Sketcher.Constraint("DistanceY", -1, 1, 9, 2, Q("67.778359 mm")),
    Sketcher.Constraint("DistanceY", -1, 1, 10, 2, Q("67.98717 mm")),
    Sketcher.Constraint("DistanceX", 11, 2, -1, 1, Q("38.78722 mm")),
    Sketcher.Constraint("DistanceY", -1, 1, 12, 2, Q("11.469442 mm")),
    Sketcher.Constraint("DistanceX", 13, 2, -1, 1, Q("35.593849 mm")),
    Sketcher.Constraint("DistanceY", -1, 1, 14, 1, Q("10.16117 mm")),
    Sketcher.Constraint("DistanceX", 14, 2, -1, 1, Q("19.659091 mm")),
    Sketcher.Constraint("DistanceX", 0, 2, 1, 2, Q("0.547181 mm")),
    Sketcher.Constraint("DistanceX", 0, 2, 2, 2, Q("2.357158 mm")),
    Sketcher.Constraint("DistanceX", 2, 2, 4, 2, Q("4.571581 mm")),
    Sketcher.Constraint("DistanceY", 2, 2, 4, 2, Q("30.988869 mm")),
    Sketcher.Constraint("DistanceX", 5, 2, 6, 2, Q("2.49952 mm")),
    Sketcher.Constraint("DistanceX", 6, 2, 7, 2, Q("0.638762 mm")),
    Sketcher.Constraint("DistanceX", 8, 2, 7, 2, Q("2.427509 mm")),
    Sketcher.Constraint("DistanceY", 6, 2, 8, 2, Q("3.50993 mm")),
    Sketcher.Constraint("DistanceY", 0, 2, 11, 2, Q("1.099462 mm")),
    Sketcher.Constraint("DistanceX", 1, 2, 14, 1, Q("1.408731 mm")),
    Sketcher.Constraint("DistanceY", 14, 2, 7, 2, Q("0.417621 mm")),
])
groove = body.newObject("PartDesign::Groove", "Groove")
groove.Profile = sketch13
groove.ReferenceAxis = (sketch13, ["Axis0"])
groove.Angle = 360

doc.recompute()
